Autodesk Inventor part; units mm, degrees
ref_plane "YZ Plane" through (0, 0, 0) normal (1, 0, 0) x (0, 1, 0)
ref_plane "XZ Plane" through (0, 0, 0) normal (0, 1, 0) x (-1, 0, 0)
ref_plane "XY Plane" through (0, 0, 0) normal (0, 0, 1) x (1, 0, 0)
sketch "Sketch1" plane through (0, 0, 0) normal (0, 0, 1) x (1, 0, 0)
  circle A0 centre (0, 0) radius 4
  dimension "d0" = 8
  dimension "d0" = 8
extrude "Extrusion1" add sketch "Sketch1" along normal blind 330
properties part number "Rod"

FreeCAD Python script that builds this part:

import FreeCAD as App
import Part
import Sketcher

V = App.Vector

doc = App.newDocument("Part")
body = doc.addObject("PartDesign::Body", "Body")

# Sketch on XY plane
sketch1 = body.newObject("Sketcher::SketchObject", "Sketch")
sketch1.AttachmentSupport = (doc.getObject("XY_Plane"), [""])
sketch1.MapMode = "FlatFace"
sketch1.addGeometry(Part.Circle(V(0, 0, 0), V(0, 0, 1), 4), False)
sketch1.addConstraint(Sketcher.Constraint("Coincident", 0, 3, -1, 1))
sketch1.addConstraint(Sketcher.Constraint("Diameter", 0, 8.0))
pad1 = body.newObject("PartDesign::Pad", "Pad")
pad1.Profile = sketch1
pad1.Length = 330

doc.recompute()
